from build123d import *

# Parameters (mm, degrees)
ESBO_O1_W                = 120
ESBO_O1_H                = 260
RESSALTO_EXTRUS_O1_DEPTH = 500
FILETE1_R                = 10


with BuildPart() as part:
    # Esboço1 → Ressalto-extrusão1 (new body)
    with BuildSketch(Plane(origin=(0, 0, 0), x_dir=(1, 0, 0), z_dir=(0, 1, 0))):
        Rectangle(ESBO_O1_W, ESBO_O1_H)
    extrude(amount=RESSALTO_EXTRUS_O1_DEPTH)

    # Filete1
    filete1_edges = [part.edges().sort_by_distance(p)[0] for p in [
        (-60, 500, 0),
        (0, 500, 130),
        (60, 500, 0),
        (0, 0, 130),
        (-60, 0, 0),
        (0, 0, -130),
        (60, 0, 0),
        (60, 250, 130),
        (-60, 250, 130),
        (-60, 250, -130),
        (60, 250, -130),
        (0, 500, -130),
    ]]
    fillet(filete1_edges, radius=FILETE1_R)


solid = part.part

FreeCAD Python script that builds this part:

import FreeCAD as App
import Part
import Sketcher
from FreeCAD import Vector

doc = App.newDocument("Part")
body = doc.addObject("PartDesign::Body", "Body")

sketch1 = doc.addObject("Sketcher::SketchObject", "Sketch")
body.addObject(sketch1)
sketch1.AttachmentSupport = (doc.XZ_Plane, [""])
sketch1.MapMode = "FlatFace"
sketch1.addGeometry(Part.LineSegment(Vector(-60, -130, 0), Vector(-60, 130, 0)), False)
sketch1.addGeometry(Part.LineSegment(Vector(-60, 130, 0), Vector(60, 130, 0)), False)
sketch1.addGeometry(Part.LineSegment(Vector(60, 130, 0), Vector(60, -130, 0)), False)
sketch1.addGeometry(Part.LineSegment(Vector(60, -130, 0), Vector(-60, -130, 0)), False)
sketch1.addConstraint(Sketcher.Constraint("Coincident", 0, 2, 1, 1))
sketch1.addConstraint(Sketcher.Constraint("Coincident", 1, 2, 2, 1))
sketch1.addConstraint(Sketcher.Constraint("Coincident", 2, 2, 3, 1))
sketch1.addConstraint(Sketcher.Constraint("Coincident", 3, 2, 0, 1))
sketch1.addConstraint(Sketcher.Constraint("Vertical", 0))
sketch1.addConstraint(Sketcher.Constraint("Horizontal", 1))
sketch1.addConstraint(Sketcher.Constraint("Vertical", 2))
sketch1.addConstraint(Sketcher.Constraint("Horizontal", 3))
sketch1.addConstraint(Sketcher.Constraint("Symmetric", 0, 2, 2, 2, -1, 1))
sketch1.addConstraint(Sketcher.Constraint("DistanceX", 1, 1, 1, 2, 120.0))
sketch1.addConstraint(Sketcher.Constraint("DistanceY", 0, 1, 0, 2, 260.0))
pad1 = doc.addObject("PartDesign::Pad", "Pad")
body.addObject(pad1)
pad1.Profile = sketch1
pad1.Length = 500
pad1.Reversed = True
doc.recompute()

fillet = doc.addObject("PartDesign::Fillet", "Fillet")
body.addObject(fillet)
fillet.Base = (pad1, ["Edge1"])
fillet.UseAllEdges = True
fillet.Radius = 10

doc.recompute()
